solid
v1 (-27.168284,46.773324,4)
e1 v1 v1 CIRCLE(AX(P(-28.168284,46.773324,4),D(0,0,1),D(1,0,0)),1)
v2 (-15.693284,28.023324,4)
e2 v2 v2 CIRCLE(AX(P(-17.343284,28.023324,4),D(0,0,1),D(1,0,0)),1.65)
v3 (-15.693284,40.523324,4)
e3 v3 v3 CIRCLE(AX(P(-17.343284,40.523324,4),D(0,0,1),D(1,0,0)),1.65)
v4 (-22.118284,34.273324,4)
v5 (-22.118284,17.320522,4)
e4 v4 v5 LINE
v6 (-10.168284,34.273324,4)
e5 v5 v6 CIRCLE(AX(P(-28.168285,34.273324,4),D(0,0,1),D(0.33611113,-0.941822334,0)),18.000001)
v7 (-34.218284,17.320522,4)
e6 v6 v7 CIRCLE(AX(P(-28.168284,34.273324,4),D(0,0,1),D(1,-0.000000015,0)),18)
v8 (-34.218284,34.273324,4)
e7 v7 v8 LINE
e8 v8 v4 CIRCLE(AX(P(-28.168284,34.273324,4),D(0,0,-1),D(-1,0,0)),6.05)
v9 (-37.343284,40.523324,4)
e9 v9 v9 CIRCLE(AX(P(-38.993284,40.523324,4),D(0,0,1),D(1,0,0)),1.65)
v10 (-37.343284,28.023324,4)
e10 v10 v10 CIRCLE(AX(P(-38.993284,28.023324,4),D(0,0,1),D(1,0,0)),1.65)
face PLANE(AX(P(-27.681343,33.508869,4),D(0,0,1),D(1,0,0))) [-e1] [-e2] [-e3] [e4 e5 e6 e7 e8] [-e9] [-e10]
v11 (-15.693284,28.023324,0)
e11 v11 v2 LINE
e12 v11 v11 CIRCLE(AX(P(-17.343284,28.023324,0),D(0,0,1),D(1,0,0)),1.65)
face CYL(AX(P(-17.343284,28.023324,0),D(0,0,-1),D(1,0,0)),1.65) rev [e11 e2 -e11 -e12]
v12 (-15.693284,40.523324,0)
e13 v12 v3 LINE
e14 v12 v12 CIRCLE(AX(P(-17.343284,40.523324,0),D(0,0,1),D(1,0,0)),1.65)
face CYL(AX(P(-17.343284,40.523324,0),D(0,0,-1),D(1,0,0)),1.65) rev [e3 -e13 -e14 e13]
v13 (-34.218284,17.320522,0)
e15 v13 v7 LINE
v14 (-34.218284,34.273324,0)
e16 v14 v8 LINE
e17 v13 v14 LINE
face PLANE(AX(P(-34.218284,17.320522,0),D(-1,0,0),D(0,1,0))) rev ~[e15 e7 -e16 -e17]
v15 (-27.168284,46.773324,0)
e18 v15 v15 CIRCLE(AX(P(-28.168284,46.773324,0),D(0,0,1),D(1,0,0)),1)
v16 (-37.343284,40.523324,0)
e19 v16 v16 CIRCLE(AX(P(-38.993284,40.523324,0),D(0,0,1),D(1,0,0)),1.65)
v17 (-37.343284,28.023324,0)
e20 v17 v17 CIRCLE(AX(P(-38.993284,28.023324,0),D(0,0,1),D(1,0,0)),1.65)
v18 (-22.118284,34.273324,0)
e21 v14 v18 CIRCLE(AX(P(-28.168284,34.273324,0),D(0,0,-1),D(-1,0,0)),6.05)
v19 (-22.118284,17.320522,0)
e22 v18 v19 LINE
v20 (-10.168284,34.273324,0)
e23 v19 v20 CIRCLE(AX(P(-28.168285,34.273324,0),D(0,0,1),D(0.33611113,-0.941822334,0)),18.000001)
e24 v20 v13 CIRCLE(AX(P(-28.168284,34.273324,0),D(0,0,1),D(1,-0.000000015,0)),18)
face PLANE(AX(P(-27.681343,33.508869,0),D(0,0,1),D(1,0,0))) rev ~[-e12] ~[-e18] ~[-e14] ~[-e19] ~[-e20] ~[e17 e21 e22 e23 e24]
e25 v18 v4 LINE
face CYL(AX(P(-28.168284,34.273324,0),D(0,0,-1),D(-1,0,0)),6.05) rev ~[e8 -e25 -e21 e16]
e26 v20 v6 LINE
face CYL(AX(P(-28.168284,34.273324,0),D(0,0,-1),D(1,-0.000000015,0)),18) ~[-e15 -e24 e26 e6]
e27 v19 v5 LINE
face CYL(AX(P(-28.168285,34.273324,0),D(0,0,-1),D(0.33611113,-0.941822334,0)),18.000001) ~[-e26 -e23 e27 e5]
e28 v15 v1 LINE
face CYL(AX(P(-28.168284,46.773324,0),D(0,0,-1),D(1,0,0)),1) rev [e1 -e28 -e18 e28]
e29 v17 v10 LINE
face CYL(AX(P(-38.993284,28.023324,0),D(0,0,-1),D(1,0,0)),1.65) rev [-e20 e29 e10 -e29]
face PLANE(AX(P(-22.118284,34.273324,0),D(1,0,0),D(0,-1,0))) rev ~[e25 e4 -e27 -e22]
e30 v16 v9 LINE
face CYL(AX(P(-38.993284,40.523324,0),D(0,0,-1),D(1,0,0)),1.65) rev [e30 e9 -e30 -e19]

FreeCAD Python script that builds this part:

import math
import FreeCAD as App
import Part
import Sketcher

V = App.Vector
Q = App.Units.Quantity

doc = App.newDocument("Part")
params = doc.addObject("Spreadsheet::Sheet", "Params")
for row, (alias, value) in enumerate([
    ("sketch1_diameter", "2 mm"),
    ("sketch1_radius", "18.000001 mm"),
    ("sketch1_diameter2", "3.3 mm"),
    ("sketch1_radius2", "6.05 mm"),
    ("pad1_length", "4 mm"),
], start=1):
    params.set(f"A{row}", alias)
    params.set(f"B{row}", "=" + value)
    params.setAlias(f"B{row}", alias)

body = doc.addObject("PartDesign::Body", "Body")

# Sketch on XY plane
sketch1 = body.newObject("Sketcher::SketchObject", "Sketch")
sketch1.AttachmentSupport = (doc.getObject("XY_Plane"), [""])
sketch1.MapMode = "FlatFace"
sketch1.addGeometry(Part.ArcOfCircle(Part.Circle(V(-28.2, 34.3, 0), V(0, 0, 1), 18), math.radians(-70), math.radians(0)), False)
sketch1.addGeometry(Part.ArcOfCircle(Part.Circle(V(-28.2, 34.3, 0), V(0, 0, 1), 18), math.radians(0), math.radians(250)), False)
sketch1.addGeometry(Part.LineSegment(V(-34.2, 17.3, 0), V(-34.2, 34.3, 0)), False)
sketch1.addGeometry(Part.ArcOfCircle(Part.Circle(V(-28.2, 34.3, 0), V(0, 0, 1), 6), math.radians(0), math.radians(180)), False)
sketch1.addGeometry(Part.LineSegment(V(-22.1, 34.3, 0), V(-22.1, 17.3, 0)), False)
sketch1.addGeometry(Part.Circle(V(-39, 28, 0), V(0, 0, 1), 1.6), False)
sketch1.addGeometry(Part.Circle(V(-17.3, 28, 0), V(0, 0, 1), 1.6), False)
sketch1.addGeometry(Part.Circle(V(-39, 40.5, 0), V(0, 0, 1), 1.6), False)
sketch1.addGeometry(Part.Circle(V(-17.3, 40.5, 0), V(0, 0, 1), 1.6), False)
sketch1.addGeometry(Part.Circle(V(-28.2, 46.8, 0), V(0, 0, 1), 1), False)
sketch1.addConstraint(Sketcher.Constraint("Tangent", 0, 2, 1, 1))
sketch1.addConstraint(Sketcher.Constraint("Coincident", 1, 2, 2, 1))
sketch1.addConstraint(Sketcher.Constraint("Tangent", 2, 2, 3, 2))
sketch1.addConstraint(Sketcher.Constraint("Tangent", 3, 1, 4, 1))
sketch1.addConstraint(Sketcher.Constraint("Coincident", 4, 2, 0, 1))
sketch1.addConstraint(Sketcher.Constraint("Vertical", 2))
sketch1.addConstraint(Sketcher.Constraint("Vertical", 4))
sketch1.addConstraint(Sketcher.Constraint("Coincident", 3, 3, 0, 3))
sketch1.addConstraint(Sketcher.Constraint("Equal", 0, 1))
sketch1.addConstraint(Sketcher.Constraint("Equal", 5, 6))
sketch1.addConstraint(Sketcher.Constraint("Equal", 6, 7))
sketch1.addConstraint(Sketcher.Constraint("Equal", 7, 8))
sketch1.addConstraint(Sketcher.Constraint("Horizontal", 5, 3, 6, 3))
sketch1.addConstraint(Sketcher.Constraint("Horizontal", 7, 3, 8, 3))
sketch1.addConstraint(Sketcher.Constraint("Horizontal", 3, 3, 0, 2))
sketch1.addConstraint(Sketcher.Constraint("Vertical", 5, 3, 7, 3))
sketch1.addConstraint(Sketcher.Constraint("Vertical", 6, 3, 8, 3))
sketch1.addConstraint(Sketcher.Constraint("Vertical", 3, 3, 9, 3))
sketch1.addConstraint(Sketcher.Constraint("Diameter", 9, Q("2 mm")))
sketch1.addConstraint(Sketcher.Constraint("Radius", 0, Q("18.000001 mm")))
sketch1.addConstraint(Sketcher.Constraint("Diameter", 5, Q("3.3 mm")))
sketch1.addConstraint(Sketcher.Constraint("Radius", 3, Q("6.05 mm")))
sketch1.addConstraint(Sketcher.Constraint("DistanceY", 5, 3, 7, 3, Q("12.5 mm")))
sketch1.addConstraint(Sketcher.Constraint("DistanceY", 0, 3, 9, 3, Q("12.5 mm")))
sketch1.addConstraint(Sketcher.Constraint("DistanceY", 5, 3, 0, 3, Q("6.25 mm")))
sketch1.addConstraint(Sketcher.Constraint("DistanceX", 5, 3, 6, 3, Q("21.65 mm")))
sketch1.addConstraint(Sketcher.Constraint("DistanceX", 5, 3, 0, 3, Q("10.824999 mm")))
sketch1.addConstraint(Sketcher.Constraint("DistanceY", -1, 1, 1, 2, Q("17.320522 mm")))
sketch1.addConstraint(Sketcher.Constraint("DistanceX", 0, 3, -1, 1, Q("28.168285 mm")))
sketch1.setExpression("Constraints[18]", "Params.sketch1_diameter")
sketch1.setExpression("Constraints[19]", "Params.sketch1_radius")
sketch1.setExpression("Constraints[20]", "Params.sketch1_diameter2")
sketch1.setExpression("Constraints[21]", "Params.sketch1_radius2")
pad1 = body.newObject("PartDesign::Pad", "Pad")
pad1.Profile = sketch1
pad1.setExpression("Length", "Params.pad1_length")

doc.recompute()
